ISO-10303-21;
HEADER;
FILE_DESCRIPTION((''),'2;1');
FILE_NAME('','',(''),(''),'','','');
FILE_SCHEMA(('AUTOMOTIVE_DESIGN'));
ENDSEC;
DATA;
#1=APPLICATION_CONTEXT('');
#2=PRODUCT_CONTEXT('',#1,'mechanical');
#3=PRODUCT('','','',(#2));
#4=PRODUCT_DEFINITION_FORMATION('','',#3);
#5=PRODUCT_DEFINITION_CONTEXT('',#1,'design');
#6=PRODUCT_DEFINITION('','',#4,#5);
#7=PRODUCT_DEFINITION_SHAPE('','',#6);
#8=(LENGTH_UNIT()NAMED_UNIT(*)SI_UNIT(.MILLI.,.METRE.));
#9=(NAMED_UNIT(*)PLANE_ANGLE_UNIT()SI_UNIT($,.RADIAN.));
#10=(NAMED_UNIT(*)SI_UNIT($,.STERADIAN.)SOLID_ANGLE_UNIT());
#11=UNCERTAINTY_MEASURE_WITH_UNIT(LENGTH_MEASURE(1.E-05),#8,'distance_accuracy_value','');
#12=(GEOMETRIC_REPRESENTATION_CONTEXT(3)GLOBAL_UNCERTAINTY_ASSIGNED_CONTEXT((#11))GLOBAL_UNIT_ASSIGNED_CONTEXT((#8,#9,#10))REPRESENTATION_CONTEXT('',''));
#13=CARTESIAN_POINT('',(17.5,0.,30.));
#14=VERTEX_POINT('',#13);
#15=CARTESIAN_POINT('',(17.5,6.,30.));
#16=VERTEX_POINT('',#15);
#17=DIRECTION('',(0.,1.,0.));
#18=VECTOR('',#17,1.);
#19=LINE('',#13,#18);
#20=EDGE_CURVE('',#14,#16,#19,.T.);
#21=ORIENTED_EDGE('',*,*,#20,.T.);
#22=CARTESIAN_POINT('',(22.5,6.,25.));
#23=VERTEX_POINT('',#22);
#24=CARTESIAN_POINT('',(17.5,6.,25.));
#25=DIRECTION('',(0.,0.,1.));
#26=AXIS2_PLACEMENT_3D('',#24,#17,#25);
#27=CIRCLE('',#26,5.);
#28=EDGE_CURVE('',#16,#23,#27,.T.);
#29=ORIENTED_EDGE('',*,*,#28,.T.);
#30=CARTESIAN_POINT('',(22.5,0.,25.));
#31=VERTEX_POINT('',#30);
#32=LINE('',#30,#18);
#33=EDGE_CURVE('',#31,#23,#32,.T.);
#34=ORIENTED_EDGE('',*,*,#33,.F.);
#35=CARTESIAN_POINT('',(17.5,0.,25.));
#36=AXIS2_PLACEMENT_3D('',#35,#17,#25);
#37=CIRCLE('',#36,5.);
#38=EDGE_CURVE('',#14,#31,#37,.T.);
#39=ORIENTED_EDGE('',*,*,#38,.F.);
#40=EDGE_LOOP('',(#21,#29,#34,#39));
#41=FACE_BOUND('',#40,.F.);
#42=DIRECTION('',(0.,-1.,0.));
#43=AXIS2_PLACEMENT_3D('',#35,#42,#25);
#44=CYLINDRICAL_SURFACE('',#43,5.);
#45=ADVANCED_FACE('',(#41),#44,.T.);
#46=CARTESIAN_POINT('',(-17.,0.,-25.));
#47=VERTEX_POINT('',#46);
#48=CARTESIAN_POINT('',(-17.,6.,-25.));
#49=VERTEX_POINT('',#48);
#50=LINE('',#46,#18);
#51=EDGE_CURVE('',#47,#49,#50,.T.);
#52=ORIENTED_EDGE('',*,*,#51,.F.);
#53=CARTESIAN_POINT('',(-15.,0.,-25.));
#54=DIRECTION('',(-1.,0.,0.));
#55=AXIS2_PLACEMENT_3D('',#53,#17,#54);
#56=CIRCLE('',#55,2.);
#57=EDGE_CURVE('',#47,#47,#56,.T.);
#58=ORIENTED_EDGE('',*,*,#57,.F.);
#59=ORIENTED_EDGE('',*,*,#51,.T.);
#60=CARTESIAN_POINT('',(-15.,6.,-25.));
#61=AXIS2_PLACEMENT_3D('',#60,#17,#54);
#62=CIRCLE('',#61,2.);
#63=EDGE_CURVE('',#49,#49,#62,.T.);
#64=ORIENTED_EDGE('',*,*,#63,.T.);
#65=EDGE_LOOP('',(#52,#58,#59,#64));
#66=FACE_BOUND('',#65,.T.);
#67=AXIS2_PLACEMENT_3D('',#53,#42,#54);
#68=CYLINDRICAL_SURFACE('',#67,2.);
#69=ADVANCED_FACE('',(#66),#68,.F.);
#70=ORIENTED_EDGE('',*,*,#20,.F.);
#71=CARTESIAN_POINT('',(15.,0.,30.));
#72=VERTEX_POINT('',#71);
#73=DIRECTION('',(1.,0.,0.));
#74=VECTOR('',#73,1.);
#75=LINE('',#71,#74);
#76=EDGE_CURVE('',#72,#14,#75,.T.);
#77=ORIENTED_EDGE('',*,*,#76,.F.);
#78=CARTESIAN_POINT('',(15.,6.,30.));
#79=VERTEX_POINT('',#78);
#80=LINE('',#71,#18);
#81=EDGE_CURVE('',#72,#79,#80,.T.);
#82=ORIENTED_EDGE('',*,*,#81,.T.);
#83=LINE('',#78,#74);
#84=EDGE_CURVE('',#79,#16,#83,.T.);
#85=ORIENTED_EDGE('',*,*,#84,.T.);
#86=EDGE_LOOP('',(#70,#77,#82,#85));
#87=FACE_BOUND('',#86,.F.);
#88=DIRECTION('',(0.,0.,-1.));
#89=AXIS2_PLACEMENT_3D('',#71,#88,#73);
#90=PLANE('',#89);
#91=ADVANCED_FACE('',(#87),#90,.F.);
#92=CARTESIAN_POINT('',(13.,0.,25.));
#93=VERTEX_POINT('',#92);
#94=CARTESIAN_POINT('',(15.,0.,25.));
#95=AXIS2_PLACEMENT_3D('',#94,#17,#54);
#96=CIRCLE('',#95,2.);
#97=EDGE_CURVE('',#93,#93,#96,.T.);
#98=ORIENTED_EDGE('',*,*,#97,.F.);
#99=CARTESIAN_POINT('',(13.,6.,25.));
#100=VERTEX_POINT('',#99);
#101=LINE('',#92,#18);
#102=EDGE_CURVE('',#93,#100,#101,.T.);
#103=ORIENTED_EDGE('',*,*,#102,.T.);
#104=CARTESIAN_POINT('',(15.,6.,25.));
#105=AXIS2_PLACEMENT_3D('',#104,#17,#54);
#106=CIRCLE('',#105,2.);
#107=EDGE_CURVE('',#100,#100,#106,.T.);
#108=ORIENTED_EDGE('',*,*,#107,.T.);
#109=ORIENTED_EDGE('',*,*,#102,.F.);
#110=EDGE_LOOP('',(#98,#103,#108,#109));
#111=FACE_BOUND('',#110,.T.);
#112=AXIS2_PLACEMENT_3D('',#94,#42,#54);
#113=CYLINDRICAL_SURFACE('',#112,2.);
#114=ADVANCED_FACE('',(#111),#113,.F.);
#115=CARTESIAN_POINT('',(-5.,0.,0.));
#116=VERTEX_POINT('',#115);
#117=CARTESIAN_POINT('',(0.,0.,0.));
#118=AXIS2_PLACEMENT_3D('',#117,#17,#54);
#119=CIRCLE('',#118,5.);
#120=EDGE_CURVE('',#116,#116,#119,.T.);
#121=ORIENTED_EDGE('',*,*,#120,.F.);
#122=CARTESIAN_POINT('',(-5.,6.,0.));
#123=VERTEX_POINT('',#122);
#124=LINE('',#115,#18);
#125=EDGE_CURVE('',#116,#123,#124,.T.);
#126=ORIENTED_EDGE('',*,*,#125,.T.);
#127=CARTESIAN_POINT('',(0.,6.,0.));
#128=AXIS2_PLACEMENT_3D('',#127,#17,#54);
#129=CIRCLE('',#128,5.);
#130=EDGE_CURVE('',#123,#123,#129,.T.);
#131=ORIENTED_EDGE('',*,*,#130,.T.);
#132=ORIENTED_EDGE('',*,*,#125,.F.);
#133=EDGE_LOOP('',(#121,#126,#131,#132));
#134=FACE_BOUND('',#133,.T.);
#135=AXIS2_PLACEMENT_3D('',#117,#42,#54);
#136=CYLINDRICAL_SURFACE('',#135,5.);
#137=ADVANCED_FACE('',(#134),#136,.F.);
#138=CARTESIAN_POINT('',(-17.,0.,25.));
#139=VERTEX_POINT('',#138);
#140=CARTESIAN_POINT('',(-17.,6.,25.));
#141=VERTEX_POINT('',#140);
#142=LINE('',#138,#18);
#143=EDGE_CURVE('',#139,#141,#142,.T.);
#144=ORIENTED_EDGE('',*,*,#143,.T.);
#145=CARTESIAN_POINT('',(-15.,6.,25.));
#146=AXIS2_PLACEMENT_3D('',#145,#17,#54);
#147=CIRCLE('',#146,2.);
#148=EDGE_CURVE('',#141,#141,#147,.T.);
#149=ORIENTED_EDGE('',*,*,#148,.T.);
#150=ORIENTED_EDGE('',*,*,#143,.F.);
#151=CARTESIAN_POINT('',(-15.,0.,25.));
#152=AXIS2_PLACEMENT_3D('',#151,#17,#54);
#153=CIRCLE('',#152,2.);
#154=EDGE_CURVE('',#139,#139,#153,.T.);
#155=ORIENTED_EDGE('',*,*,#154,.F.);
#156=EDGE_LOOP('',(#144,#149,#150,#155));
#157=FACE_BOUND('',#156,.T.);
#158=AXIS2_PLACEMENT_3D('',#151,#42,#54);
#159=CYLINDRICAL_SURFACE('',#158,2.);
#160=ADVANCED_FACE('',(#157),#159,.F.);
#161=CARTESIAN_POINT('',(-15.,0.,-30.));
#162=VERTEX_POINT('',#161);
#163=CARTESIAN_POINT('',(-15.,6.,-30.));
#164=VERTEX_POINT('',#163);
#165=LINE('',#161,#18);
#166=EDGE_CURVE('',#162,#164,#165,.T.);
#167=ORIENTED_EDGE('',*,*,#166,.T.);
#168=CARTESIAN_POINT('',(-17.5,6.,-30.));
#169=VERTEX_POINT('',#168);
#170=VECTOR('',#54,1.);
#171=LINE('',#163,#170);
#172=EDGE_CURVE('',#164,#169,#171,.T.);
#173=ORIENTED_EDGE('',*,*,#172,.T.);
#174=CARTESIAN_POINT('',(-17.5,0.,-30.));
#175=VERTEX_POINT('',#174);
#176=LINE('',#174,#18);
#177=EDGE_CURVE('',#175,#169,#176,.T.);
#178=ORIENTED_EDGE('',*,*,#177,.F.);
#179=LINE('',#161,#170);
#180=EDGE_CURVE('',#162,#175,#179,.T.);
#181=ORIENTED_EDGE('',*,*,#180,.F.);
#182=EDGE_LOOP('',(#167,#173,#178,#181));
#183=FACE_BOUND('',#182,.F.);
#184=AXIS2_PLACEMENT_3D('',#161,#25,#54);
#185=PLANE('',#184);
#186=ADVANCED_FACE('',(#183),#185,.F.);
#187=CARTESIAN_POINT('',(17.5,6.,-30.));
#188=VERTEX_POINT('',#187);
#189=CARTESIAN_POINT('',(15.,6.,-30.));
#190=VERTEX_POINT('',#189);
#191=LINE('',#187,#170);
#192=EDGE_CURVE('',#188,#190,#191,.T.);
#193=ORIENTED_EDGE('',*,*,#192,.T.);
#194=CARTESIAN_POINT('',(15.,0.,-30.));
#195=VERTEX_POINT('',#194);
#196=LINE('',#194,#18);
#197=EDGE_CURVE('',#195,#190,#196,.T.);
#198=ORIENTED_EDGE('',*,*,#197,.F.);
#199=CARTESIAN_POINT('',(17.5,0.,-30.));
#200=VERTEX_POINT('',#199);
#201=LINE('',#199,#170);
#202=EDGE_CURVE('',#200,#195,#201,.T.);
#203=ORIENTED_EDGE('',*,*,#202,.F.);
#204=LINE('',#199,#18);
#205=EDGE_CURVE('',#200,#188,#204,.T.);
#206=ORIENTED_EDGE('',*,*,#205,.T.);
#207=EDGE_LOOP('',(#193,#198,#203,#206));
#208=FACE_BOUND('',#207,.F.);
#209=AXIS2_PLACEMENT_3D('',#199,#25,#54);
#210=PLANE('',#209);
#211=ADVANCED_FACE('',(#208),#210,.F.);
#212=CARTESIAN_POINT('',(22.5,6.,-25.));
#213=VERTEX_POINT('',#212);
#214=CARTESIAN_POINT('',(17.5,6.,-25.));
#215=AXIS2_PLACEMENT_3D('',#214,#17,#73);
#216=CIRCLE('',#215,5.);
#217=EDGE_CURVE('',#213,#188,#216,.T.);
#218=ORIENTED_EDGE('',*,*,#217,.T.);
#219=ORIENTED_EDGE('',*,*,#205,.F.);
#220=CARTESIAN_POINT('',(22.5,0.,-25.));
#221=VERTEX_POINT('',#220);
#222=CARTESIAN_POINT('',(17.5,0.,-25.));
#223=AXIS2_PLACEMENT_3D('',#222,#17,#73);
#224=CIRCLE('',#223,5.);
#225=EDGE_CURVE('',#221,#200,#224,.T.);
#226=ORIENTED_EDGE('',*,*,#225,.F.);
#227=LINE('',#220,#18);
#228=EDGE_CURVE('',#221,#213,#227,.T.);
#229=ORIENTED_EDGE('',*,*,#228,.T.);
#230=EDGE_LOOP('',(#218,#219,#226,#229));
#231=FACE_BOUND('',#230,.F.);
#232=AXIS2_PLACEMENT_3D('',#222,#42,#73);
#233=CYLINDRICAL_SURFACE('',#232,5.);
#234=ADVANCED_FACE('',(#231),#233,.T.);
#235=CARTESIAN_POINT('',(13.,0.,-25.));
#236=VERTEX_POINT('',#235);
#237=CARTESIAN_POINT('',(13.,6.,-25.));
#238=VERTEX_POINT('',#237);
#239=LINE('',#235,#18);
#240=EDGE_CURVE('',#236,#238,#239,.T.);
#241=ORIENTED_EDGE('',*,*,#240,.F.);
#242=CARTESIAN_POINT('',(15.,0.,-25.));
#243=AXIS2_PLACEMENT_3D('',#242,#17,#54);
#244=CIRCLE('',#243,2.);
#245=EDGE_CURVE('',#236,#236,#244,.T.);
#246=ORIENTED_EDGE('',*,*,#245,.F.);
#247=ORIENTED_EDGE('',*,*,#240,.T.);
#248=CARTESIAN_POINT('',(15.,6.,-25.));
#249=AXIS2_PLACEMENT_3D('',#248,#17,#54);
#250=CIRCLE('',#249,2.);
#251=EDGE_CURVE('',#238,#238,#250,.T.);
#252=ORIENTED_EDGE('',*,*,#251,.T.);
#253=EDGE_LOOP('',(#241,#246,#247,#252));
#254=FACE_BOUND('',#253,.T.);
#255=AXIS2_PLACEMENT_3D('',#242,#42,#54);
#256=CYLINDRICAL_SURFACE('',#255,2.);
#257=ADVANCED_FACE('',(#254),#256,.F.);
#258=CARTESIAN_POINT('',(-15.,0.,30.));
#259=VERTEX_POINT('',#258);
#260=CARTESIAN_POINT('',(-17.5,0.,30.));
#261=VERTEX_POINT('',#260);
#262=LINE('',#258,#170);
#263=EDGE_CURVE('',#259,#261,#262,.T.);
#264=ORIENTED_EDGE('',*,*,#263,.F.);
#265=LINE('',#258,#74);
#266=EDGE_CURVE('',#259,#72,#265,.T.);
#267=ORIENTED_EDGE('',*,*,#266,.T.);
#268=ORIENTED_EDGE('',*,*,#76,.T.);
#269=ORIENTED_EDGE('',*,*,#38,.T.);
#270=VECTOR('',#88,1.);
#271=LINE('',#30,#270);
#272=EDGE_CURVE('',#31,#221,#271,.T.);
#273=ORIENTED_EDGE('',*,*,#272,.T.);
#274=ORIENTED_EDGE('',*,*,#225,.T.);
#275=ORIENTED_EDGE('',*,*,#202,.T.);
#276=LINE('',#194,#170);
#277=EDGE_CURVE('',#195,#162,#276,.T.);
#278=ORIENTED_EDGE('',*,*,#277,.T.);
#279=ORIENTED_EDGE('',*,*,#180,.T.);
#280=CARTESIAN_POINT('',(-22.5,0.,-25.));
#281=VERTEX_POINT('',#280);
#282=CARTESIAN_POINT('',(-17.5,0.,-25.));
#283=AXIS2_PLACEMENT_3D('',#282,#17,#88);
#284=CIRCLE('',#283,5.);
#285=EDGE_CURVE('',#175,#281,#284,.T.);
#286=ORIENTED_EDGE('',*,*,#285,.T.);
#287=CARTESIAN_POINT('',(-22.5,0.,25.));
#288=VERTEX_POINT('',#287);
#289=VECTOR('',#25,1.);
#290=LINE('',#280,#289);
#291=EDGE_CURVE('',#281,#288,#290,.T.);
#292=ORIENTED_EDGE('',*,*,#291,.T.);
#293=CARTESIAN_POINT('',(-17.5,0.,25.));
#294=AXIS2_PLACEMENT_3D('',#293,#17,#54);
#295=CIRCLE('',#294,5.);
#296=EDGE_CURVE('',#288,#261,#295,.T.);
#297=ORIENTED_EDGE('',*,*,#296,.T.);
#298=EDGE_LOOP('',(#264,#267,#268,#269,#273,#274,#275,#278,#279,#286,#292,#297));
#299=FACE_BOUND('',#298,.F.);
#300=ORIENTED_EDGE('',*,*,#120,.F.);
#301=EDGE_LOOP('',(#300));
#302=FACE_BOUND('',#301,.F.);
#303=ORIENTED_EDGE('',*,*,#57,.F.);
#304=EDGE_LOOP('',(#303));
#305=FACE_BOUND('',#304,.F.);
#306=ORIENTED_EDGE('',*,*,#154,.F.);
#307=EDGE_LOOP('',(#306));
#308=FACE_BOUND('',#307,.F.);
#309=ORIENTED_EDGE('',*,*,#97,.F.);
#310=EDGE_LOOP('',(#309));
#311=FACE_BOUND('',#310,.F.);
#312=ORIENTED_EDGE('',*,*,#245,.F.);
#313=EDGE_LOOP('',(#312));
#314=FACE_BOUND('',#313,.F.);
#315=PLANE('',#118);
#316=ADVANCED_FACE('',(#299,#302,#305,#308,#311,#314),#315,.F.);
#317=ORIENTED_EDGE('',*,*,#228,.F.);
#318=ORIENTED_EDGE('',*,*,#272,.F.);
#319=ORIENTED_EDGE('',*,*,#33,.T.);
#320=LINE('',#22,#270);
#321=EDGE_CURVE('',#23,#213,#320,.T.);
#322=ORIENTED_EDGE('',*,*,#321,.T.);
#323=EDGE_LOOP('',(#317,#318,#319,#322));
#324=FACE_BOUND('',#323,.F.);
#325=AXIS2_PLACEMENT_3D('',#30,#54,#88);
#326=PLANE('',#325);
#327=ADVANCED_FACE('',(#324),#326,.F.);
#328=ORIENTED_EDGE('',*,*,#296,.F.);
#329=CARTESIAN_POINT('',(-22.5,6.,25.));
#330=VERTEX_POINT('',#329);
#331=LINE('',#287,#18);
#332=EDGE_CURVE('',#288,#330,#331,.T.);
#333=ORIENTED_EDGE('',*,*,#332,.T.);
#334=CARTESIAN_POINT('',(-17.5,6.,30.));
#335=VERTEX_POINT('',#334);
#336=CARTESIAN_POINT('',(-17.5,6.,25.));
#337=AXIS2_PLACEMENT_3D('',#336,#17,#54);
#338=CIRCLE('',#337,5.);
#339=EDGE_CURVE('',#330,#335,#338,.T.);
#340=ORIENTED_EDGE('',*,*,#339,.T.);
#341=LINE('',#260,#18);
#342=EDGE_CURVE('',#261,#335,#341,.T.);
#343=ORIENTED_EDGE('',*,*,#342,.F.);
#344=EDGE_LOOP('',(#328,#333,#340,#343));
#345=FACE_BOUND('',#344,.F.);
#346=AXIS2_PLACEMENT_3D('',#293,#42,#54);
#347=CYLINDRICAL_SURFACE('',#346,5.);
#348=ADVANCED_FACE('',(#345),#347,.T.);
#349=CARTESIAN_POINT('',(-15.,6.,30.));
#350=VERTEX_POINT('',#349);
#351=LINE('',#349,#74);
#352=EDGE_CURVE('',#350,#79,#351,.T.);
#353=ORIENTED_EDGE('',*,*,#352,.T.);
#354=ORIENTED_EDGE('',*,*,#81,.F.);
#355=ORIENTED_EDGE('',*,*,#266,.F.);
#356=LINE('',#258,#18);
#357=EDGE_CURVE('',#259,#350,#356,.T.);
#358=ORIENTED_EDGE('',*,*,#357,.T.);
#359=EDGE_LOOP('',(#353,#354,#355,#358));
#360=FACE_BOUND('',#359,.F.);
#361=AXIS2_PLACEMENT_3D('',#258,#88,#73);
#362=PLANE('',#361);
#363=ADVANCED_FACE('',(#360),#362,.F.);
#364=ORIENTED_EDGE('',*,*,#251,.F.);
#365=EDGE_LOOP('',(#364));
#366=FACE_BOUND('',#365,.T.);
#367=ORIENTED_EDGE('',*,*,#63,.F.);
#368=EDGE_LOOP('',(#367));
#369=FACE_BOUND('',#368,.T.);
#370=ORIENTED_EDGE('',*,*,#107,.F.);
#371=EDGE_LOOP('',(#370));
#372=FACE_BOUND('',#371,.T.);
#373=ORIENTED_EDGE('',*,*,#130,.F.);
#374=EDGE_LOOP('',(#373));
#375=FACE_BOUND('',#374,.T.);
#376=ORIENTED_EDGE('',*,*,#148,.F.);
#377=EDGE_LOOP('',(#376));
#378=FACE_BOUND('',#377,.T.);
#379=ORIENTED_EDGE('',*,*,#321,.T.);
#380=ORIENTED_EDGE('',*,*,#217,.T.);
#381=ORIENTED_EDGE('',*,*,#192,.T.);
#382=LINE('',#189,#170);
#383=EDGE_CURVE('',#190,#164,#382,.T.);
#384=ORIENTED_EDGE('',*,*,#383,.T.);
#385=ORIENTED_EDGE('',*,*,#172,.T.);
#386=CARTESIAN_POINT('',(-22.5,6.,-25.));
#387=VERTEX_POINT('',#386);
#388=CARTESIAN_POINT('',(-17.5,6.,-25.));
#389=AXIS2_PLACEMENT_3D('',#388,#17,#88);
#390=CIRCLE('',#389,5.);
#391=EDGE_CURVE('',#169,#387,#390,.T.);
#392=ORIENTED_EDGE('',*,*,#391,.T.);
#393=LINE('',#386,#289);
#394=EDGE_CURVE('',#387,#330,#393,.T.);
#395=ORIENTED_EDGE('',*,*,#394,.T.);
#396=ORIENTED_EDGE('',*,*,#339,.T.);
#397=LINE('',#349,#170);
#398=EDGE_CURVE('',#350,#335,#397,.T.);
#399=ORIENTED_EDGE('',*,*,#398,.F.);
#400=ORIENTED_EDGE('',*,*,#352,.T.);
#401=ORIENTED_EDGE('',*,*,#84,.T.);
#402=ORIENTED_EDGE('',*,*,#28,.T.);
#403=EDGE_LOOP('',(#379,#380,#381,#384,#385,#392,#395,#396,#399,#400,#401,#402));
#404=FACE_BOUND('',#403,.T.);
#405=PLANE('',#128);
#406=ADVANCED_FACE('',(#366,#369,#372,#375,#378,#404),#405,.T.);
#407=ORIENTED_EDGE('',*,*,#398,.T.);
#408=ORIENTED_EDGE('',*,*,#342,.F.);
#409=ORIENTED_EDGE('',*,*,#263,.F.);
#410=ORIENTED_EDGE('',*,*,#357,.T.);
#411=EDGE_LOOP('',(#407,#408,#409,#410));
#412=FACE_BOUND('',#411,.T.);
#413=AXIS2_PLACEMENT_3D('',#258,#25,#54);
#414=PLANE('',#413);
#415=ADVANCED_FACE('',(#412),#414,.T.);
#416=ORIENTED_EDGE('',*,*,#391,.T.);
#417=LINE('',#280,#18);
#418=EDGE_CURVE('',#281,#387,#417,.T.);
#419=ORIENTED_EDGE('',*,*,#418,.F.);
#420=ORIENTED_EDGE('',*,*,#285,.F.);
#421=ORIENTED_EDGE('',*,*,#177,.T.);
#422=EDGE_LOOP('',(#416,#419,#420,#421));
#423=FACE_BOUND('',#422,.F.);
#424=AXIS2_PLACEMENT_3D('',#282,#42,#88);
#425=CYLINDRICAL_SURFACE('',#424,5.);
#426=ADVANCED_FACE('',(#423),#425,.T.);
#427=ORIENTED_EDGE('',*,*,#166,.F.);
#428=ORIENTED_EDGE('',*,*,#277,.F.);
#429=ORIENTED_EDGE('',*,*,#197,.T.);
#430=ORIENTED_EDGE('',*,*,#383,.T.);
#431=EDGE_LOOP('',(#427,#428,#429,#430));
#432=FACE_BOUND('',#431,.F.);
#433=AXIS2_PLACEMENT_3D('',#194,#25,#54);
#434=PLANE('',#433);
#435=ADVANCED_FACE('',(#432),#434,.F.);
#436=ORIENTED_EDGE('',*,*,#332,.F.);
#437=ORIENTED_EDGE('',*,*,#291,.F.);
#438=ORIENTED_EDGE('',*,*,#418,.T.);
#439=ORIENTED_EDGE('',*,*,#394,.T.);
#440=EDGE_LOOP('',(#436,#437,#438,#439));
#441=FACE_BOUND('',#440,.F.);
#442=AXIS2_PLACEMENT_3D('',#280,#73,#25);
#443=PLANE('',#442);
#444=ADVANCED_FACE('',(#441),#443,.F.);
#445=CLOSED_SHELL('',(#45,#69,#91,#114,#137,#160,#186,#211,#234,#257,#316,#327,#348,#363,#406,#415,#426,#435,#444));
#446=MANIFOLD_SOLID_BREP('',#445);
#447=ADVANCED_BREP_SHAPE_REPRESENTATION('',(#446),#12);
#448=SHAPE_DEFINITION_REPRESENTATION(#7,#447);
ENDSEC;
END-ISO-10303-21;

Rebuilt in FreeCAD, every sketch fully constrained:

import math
import FreeCAD as App
import Part
import Sketcher

doc = App.newDocument("Part")
body = doc.addObject("PartDesign::Body", "Body")

# Sketch on XZ plane
sketch1 = doc.addObject("Sketcher::SketchObject", "Sketch")
body.addObject(sketch1)
sketch1.AttachmentSupport = (doc.XZ_Plane, [""])
sketch1.MapMode = "FlatFace"
sketch1.addGeometry(Part.LineSegment(App.Vector(17.5, -30, 0), App.Vector(-17.5, -30, 0)), False)
sketch1.addGeometry(Part.ArcOfCircle(Part.Circle(App.Vector(-17.5, -25, 0), App.Vector(0, 0, 1), 5), math.radians(180), math.radians(270)), False)
sketch1.addGeometry(Part.LineSegment(App.Vector(-22.5, -25, 0), App.Vector(-22.5, 25, 0)), False)
sketch1.addGeometry(Part.ArcOfCircle(Part.Circle(App.Vector(-17.5, 25, 0), App.Vector(0, 0, 1), 5), math.radians(90), math.radians(180)), False)
sketch1.addGeometry(Part.LineSegment(App.Vector(-17.5, 30, 0), App.Vector(17.5, 30, 0)), False)
sketch1.addGeometry(Part.ArcOfCircle(Part.Circle(App.Vector(17.5, 25, 0), App.Vector(0, 0, 1), 5), math.radians(0), math.radians(90)), False)
sketch1.addGeometry(Part.LineSegment(App.Vector(22.5, 25, 0), App.Vector(22.5, -25, 0)), False)
sketch1.addGeometry(Part.ArcOfCircle(Part.Circle(App.Vector(17.5, -25, 0), App.Vector(0, 0, 1), 5), math.radians(-90), math.radians(0)), False)
sketch1.addGeometry(Part.Circle(App.Vector(15, -25, 0), App.Vector(0, 0, 1), 2), False)
sketch1.addGeometry(Part.Circle(App.Vector(-15, -25, 0), App.Vector(0, 0, 1), 2), False)
sketch1.addGeometry(Part.Circle(App.Vector(15, 25, 0), App.Vector(0, 0, 1), 2), False)
sketch1.addGeometry(Part.Circle(App.Vector(0, 0, 0), App.Vector(0, 0, 1), 5), False)
sketch1.addGeometry(Part.Circle(App.Vector(-15, 25, 0), App.Vector(0, 0, 1), 2), False)
sketch1.addConstraint(Sketcher.Constraint("Tangent", 0, 2, 1, 2))
sketch1.addConstraint(Sketcher.Constraint("Tangent", 1, 1, 2, 1))
sketch1.addConstraint(Sketcher.Constraint("Tangent", 2, 2, 3, 2))
sketch1.addConstraint(Sketcher.Constraint("Tangent", 3, 1, 4, 1))
sketch1.addConstraint(Sketcher.Constraint("Tangent", 4, 2, 5, 2))
sketch1.addConstraint(Sketcher.Constraint("Tangent", 5, 1, 6, 1))
sketch1.addConstraint(Sketcher.Constraint("Tangent", 6, 2, 7, 2))
sketch1.addConstraint(Sketcher.Constraint("Tangent", 7, 1, 0, 1))
sketch1.addConstraint(Sketcher.Constraint("Horizontal", 0))
sketch1.addConstraint(Sketcher.Constraint("Vertical", 2))
sketch1.addConstraint(Sketcher.Constraint("Horizontal", 4))
sketch1.addConstraint(Sketcher.Constraint("Vertical", 6))
sketch1.addConstraint(Sketcher.Constraint("Coincident", 11, 3, -1, 1))
sketch1.addConstraint(Sketcher.Constraint("Equal", 1, 3))
sketch1.addConstraint(Sketcher.Constraint("Equal", 3, 5))
sketch1.addConstraint(Sketcher.Constraint("Equal", 5, 7))
sketch1.addConstraint(Sketcher.Constraint("Equal", 8, 9))
sketch1.addConstraint(Sketcher.Constraint("Equal", 9, 10))
sketch1.addConstraint(Sketcher.Constraint("Equal", 7, 11))
sketch1.addConstraint(Sketcher.Constraint("Equal", 10, 12))
sketch1.addConstraint(Sketcher.Constraint("Symmetric", 1, 3, 5, 3, -1, 1))
sketch1.addConstraint(Sketcher.Constraint("Symmetric", 9, 3, 10, 3, -1, 1))
sketch1.addConstraint(Sketcher.Constraint("Symmetric", 8, 3, 12, 3, -1, 1))
sketch1.addConstraint(Sketcher.Constraint("Symmetric", 8, 3, 9, 3, -2))
sketch1.addConstraint(Sketcher.Constraint("Horizontal", 7, 3, 8, 3))
sketch1.addConstraint(Sketcher.Constraint("Diameter", 8, 4.0))
sketch1.addConstraint(Sketcher.Constraint("Diameter", 11, 10.0))
sketch1.addConstraint(Sketcher.Constraint("DistanceX", 2, 2, 5, 3, 40.0))
sketch1.addConstraint(Sketcher.Constraint("DistanceY", 2, 1, 2, 2, 50.0))
sketch1.addConstraint(Sketcher.Constraint("DistanceX", -1, 1, 8, 3, 15.0))
pad1 = doc.addObject("PartDesign::Pad", "Pad")
body.addObject(pad1)
pad1.Profile = sketch1
pad1.Length = 6
pad1.Reversed = True

doc.recompute()
